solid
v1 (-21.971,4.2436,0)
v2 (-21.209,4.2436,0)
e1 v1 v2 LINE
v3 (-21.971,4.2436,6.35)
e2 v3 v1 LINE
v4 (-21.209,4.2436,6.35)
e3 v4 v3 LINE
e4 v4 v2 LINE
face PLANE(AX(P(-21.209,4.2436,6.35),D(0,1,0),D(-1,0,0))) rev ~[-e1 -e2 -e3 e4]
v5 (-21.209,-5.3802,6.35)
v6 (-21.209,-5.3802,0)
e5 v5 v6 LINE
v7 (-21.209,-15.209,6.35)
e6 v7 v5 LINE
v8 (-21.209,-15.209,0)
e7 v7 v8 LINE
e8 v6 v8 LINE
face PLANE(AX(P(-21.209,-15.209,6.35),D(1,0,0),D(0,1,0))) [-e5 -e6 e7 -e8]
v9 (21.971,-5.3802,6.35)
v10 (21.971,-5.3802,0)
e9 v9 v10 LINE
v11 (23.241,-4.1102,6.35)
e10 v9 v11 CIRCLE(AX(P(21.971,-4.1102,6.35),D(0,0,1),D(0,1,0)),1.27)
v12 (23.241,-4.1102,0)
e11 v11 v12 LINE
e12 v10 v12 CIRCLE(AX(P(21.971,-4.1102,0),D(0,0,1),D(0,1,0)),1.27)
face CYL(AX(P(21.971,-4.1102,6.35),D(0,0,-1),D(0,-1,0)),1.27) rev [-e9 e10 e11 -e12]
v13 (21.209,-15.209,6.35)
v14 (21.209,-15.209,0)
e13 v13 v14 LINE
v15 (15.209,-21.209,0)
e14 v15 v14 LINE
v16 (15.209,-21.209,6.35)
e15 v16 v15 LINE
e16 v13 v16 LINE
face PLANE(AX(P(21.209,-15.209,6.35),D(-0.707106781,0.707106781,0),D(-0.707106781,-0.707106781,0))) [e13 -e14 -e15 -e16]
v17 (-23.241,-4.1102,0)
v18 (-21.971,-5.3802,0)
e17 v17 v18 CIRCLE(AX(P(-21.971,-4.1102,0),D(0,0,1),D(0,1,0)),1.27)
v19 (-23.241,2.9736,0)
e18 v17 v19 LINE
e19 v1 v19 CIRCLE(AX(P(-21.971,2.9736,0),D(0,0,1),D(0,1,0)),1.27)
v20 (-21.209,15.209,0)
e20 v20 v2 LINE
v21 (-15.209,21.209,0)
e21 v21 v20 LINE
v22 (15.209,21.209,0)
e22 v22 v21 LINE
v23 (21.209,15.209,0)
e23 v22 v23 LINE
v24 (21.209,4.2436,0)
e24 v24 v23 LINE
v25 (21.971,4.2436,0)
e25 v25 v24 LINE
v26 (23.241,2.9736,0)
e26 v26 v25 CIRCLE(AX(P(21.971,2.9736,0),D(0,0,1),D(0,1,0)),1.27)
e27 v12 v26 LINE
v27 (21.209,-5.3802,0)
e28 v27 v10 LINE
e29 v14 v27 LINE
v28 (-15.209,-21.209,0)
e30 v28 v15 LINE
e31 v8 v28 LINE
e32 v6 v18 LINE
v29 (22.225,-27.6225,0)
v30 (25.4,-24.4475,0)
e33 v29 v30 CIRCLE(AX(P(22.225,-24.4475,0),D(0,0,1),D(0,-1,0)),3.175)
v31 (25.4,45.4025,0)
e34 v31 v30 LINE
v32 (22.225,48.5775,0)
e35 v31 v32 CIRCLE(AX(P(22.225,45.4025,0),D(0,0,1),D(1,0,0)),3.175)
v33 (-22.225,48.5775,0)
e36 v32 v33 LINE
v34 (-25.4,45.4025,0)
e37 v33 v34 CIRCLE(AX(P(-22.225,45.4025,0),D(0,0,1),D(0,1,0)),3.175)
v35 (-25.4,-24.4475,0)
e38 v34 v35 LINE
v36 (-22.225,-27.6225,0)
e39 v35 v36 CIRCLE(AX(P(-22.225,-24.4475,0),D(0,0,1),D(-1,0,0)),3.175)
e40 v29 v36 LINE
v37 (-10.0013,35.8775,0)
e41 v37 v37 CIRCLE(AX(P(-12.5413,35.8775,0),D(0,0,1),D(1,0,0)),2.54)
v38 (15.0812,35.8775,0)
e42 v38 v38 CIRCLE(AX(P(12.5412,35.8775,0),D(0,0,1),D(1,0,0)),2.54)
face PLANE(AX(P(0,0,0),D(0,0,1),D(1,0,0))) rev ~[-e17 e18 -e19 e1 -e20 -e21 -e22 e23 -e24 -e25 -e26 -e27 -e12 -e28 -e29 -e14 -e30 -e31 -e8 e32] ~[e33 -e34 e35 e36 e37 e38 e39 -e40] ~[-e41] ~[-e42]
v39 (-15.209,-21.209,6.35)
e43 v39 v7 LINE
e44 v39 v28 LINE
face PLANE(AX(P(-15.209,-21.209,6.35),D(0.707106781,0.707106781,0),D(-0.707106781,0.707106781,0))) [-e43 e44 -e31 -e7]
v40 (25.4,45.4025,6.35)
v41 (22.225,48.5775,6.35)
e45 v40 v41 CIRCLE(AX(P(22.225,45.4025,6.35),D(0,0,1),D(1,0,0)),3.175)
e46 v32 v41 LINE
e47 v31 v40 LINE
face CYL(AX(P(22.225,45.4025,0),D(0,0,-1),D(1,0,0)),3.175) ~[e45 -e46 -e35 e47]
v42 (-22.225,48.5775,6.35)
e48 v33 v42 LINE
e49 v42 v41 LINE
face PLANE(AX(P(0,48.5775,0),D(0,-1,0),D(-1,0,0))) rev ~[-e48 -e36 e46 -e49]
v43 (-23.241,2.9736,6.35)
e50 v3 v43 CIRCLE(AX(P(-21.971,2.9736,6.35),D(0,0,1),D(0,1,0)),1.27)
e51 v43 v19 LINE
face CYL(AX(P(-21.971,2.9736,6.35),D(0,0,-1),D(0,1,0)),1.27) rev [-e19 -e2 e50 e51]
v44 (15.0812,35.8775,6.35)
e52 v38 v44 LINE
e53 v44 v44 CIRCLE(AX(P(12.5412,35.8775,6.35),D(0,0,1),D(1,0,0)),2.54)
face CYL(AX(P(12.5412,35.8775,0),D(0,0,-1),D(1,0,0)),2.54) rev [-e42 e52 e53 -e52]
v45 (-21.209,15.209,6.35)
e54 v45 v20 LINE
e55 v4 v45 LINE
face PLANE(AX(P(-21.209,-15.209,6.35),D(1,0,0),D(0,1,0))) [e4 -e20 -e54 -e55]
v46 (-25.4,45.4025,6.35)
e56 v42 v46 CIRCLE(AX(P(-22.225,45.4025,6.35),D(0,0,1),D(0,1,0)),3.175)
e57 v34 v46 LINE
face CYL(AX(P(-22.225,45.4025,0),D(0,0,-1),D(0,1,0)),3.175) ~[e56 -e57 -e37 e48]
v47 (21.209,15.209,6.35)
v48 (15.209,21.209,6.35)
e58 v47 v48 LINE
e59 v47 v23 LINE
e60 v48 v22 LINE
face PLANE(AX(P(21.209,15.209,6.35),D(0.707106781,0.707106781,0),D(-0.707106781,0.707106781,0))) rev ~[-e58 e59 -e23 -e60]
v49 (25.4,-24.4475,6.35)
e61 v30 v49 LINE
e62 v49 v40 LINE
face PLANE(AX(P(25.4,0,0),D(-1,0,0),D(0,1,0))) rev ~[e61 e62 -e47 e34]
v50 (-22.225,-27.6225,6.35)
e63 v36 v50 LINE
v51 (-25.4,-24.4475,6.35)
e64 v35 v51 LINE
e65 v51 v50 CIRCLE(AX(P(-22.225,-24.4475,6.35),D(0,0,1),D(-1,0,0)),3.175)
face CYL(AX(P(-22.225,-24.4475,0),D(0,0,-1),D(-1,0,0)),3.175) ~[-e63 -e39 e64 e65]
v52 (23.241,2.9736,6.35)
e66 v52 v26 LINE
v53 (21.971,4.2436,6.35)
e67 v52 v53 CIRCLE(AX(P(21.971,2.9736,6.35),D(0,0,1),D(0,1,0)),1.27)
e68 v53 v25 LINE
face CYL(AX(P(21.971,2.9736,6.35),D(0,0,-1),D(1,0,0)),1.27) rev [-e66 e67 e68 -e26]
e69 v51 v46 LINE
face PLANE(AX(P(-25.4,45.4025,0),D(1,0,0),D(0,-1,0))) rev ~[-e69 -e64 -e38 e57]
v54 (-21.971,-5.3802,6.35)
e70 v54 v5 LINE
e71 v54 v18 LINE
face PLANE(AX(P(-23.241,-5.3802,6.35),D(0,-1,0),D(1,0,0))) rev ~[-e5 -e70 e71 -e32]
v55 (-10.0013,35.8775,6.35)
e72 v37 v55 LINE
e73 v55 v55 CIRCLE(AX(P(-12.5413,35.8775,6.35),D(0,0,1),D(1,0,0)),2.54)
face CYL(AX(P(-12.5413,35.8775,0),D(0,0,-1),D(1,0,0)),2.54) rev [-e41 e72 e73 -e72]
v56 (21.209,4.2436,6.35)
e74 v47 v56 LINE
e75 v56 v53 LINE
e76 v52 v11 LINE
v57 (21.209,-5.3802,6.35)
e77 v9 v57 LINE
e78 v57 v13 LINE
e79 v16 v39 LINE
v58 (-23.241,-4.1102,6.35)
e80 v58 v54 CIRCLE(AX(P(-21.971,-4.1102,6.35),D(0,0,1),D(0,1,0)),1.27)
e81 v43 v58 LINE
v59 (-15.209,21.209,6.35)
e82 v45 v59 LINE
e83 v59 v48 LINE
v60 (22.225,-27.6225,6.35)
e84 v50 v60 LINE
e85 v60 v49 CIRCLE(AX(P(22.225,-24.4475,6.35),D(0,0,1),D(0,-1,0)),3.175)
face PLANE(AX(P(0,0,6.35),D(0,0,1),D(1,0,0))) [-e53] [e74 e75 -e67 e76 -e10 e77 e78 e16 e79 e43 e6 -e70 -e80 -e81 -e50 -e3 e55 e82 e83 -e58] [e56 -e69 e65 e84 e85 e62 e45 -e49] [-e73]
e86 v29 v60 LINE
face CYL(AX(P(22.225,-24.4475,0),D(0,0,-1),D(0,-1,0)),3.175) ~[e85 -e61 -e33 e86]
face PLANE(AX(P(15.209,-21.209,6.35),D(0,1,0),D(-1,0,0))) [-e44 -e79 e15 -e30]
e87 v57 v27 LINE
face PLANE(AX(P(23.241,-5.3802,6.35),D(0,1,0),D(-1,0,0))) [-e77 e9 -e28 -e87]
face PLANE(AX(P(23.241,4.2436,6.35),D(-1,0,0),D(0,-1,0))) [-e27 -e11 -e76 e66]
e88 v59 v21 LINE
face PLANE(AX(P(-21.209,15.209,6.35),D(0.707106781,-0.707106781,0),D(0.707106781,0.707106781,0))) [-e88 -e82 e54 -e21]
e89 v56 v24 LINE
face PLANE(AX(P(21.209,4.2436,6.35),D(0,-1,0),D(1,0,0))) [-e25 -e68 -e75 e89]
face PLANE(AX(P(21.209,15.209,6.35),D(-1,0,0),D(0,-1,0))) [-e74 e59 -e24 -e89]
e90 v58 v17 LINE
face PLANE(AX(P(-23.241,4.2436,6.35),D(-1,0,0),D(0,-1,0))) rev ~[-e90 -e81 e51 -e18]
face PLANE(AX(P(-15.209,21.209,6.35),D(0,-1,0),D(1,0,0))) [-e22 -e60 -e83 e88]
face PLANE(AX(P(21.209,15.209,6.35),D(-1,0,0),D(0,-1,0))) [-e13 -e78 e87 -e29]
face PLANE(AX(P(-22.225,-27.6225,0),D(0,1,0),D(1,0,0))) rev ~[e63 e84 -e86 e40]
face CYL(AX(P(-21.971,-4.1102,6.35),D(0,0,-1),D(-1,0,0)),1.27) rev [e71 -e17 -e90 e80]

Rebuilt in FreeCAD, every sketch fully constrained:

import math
import FreeCAD as App
import Part
import Sketcher
Q = App.Units.Quantity


def edges_at(feature, points):
    """Names of the edges that pass closest to the given points."""
    edges = feature.Shape.Edges
    near = lambda p: min(range(len(edges)), key=lambda i: edges[i].distToShape(Part.Vertex(*p))[0])
    return sorted({f"Edge{near(p) + 1}" for p in points})


def add_polygon(sketch, points):
    """Adds a closed chain of lines whose ends are joined by coincident constraints."""
    first, n = sketch.GeometryCount, len(points)
    for a, b in zip(points, points[1:] + points[:1]):
        sketch.addGeometry(Part.LineSegment(App.Vector(*a, 0), App.Vector(*b, 0)), False)
    for i in range(n):
        sketch.addConstraint(Sketcher.Constraint("Coincident", first + i, 2, first + (i + 1) % n, 1))

doc = App.newDocument("Part")
body = doc.addObject("PartDesign::Body", "Body")

sketch1 = body.newObject("Sketcher::SketchObject", "Sketch")
sketch1.AttachmentSupport = (doc.getObject("XY_Plane"), [""])
sketch1.MapMode = "FlatFace"
sketch1.addGeometry(Part.ArcOfCircle(Part.Circle(App.Vector(-22.2, 45.4, 0), App.Vector(0, 0, 1), 3.2), math.radians(90), math.radians(180)), False)
sketch1.addGeometry(Part.LineSegment(App.Vector(-25.4, 45.4, 0), App.Vector(-25.4, -24.4, 0)), False)
sketch1.addGeometry(Part.ArcOfCircle(Part.Circle(App.Vector(-22.2, -24.4, 0), App.Vector(0, 0, 1), 3.2), math.radians(180), math.radians(270)), False)
sketch1.addGeometry(Part.LineSegment(App.Vector(-22.2, -27.6, 0), App.Vector(22.2, -27.6, 0)), False)
sketch1.addGeometry(Part.ArcOfCircle(Part.Circle(App.Vector(22.2, -24.4, 0), App.Vector(0, 0, 1), 3.2), math.radians(-90), math.radians(0)), False)
sketch1.addGeometry(Part.LineSegment(App.Vector(25.4, -24.4, 0), App.Vector(25.4, 45.4, 0)), False)
sketch1.addGeometry(Part.ArcOfCircle(Part.Circle(App.Vector(22.2, 45.4, 0), App.Vector(0, 0, 1), 3.2), math.radians(0), math.radians(90)), False)
sketch1.addGeometry(Part.LineSegment(App.Vector(22.2, 48.6, 0), App.Vector(-22.2, 48.6, 0)), False)
sketch1.addGeometry(Part.Circle(App.Vector(-12.5, 35.9, 0), App.Vector(0, 0, 1), 2.5), False)
sketch1.addGeometry(Part.Circle(App.Vector(12.5, 35.9, 0), App.Vector(0, 0, 1), 2.5), False)
sketch1.addConstraint(Sketcher.Constraint("Tangent", 0, 2, 1, 1))
sketch1.addConstraint(Sketcher.Constraint("Tangent", 1, 2, 2, 1))
sketch1.addConstraint(Sketcher.Constraint("Tangent", 2, 2, 3, 1))
sketch1.addConstraint(Sketcher.Constraint("Tangent", 3, 2, 4, 1))
sketch1.addConstraint(Sketcher.Constraint("Tangent", 4, 2, 5, 1))
sketch1.addConstraint(Sketcher.Constraint("Tangent", 5, 2, 6, 1))
sketch1.addConstraint(Sketcher.Constraint("Tangent", 6, 2, 7, 1))
sketch1.addConstraint(Sketcher.Constraint("Tangent", 7, 2, 0, 1))
sketch1.addConstraint(Sketcher.Constraint("Vertical", 1))
sketch1.addConstraint(Sketcher.Constraint("Horizontal", 3))
sketch1.addConstraint(Sketcher.Constraint("Vertical", 5))
sketch1.addConstraint(Sketcher.Constraint("Horizontal", 7))
sketch1.addConstraint(Sketcher.Constraint("Equal", 0, 2))
sketch1.addConstraint(Sketcher.Constraint("Equal", 2, 4))
sketch1.addConstraint(Sketcher.Constraint("Equal", 4, 6))
sketch1.addConstraint(Sketcher.Constraint("Equal", 8, 9))
sketch1.addConstraint(Sketcher.Constraint("Symmetric", 8, 3, 9, 3, -2))
sketch1.addConstraint(Sketcher.Constraint("Diameter", 8, Q("0.2 in")))
sketch1.addConstraint(Sketcher.Constraint("Radius", 0, Q("0.125 in")))
sketch1.addConstraint(Sketcher.Constraint("DistanceX", 1, 2, 4, 2, Q("2 in")))
sketch1.addConstraint(Sketcher.Constraint("DistanceX", 0, 2, -1, 1, Q("1 in")))
sketch1.addConstraint(Sketcher.Constraint("DistanceY", 1, 2, 1, 1, Q("2.75 in")))
sketch1.addConstraint(Sketcher.Constraint("DistanceX", 8, 3, 9, 3, Q("0.9875 in")))
sketch1.addConstraint(Sketcher.Constraint("DistanceY", 2, 2, 8, 3, Q("2.5 in")))
sketch1.addConstraint(Sketcher.Constraint("DistanceY", -1, 1, 0, 3, Q("1.7875 in")))
pad1 = body.newObject("PartDesign::Pad", "Pad")
pad1.Profile = sketch1
pad1.Length = Q("0.25 in")

sketch2 = body.newObject("Sketcher::SketchObject", "Sketch001")
sketch2.AttachmentSupport = (doc.getObject("XY_Plane"), [""])
sketch2.MapMode = "FlatFace"
sketch2.AttachmentOffset = App.Placement(App.Vector(0, 0, 0.25 * 25.4), App.Rotation())
add_polygon(sketch2, [(-15, -21), (15, -21), (21, -15), (21, 15), (15, 21), (-15, 21), (-21, 15), (-21, -15)])
sketch2.addConstraint(Sketcher.Constraint("Horizontal", 0))
sketch2.addConstraint(Sketcher.Constraint("Vertical", 2))
sketch2.addConstraint(Sketcher.Constraint("Horizontal", 4))
sketch2.addConstraint(Sketcher.Constraint("Vertical", 6))
sketch2.addConstraint(Sketcher.Constraint("Symmetric", 0, 2, 4, 2, -1, 1))
sketch2.addConstraint(Sketcher.Constraint("Symmetric", 1, 2, 5, 2, -1, 1))
sketch2.addConstraint(Sketcher.Constraint("Perpendicular", 1, 3))
sketch2.addConstraint(Sketcher.Constraint("Perpendicular", 5, 7))
sketch2.addConstraint(Sketcher.Constraint("Horizontal", 2, 2, 5, 2))
sketch2.addConstraint(Sketcher.Constraint("Horizontal", 1, 2, 6, 2))
sketch2.addConstraint(Sketcher.Constraint("Vertical", 0, 2, 3, 2))
sketch2.addConstraint(Sketcher.Constraint("Equal", 4, 2))
sketch2.addConstraint(Sketcher.Constraint("DistanceY", 0, 2, 3, 2, Q("1.67 in")))
sketch2.addConstraint(Sketcher.Constraint("DistanceX", 0, 2, 1, 2, Q("6 mm")))
pocket1 = body.newObject("PartDesign::Pocket", "Pocket")
pocket1.Profile = sketch2
pocket1.Type = "UpToFirst"

sketch3 = body.newObject("Sketcher::SketchObject", "Sketch002")
sketch3.AttachmentSupport = (doc.getObject("XY_Plane"), [""])
sketch3.MapMode = "FlatFace"
sketch3.AttachmentOffset = App.Placement(App.Vector(0, 0, 0.25 * 25.4), App.Rotation())
add_polygon(sketch3, [(-21.2, -5.4), (-21.2, 4.2), (-23.2, 4.2), (-23.2, -5.4)])
add_polygon(sketch3, [(23.2, 4.2), (21.2, 4.2), (21.2, -5.4), (23.2, -5.4)])
sketch3.addConstraint(Sketcher.Constraint("Vertical", 0))
sketch3.addConstraint(Sketcher.Constraint("Horizontal", 1))
sketch3.addConstraint(Sketcher.Constraint("Vertical", 2))
sketch3.addConstraint(Sketcher.Constraint("Horizontal", 3))
sketch3.addConstraint(Sketcher.Constraint("Horizontal", 4))
sketch3.addConstraint(Sketcher.Constraint("Vertical", 5))
sketch3.addConstraint(Sketcher.Constraint("Horizontal", 6))
sketch3.addConstraint(Sketcher.Constraint("Vertical", 7))
sketch3.addConstraint(Sketcher.Constraint("Symmetric", 0, 2, 4, 2, -2))
sketch3.addConstraint(Sketcher.Constraint("Symmetric", 2, 2, 6, 2, -2))
sketch3.addConstraint(Sketcher.Constraint("DistanceX", 1, 2, 1, 1, Q("0.08 in")))
sketch3.addConstraint(Sketcher.Constraint("DistanceX", 0, 2, 4, 2, Q("1.67 in")))
sketch3.addConstraint(Sketcher.Constraint("DistanceY", 0, 1, 0, 2, Q("0.3789 in")))
sketch3.addConstraint(Sketcher.Constraint("DistanceY", -1, 1, 0, 2, Q("4.2436 mm")))
pocket2 = body.newObject("PartDesign::Pocket", "Pocket001")
pocket2.Profile = sketch3
pocket2.Length = Q("0.25 in")
doc.recompute()

fillet = body.newObject("PartDesign::Fillet", "Fillet")
fillet.Base = (pocket2, edges_at(pocket2, [
    (-23.241, 4.244, 3.175),
    (-23.241, -5.38, 3.175),
    (23.241, 4.244, 3.175),
    (23.241, -5.38, 3.175),
]))
fillet.Radius = Q("0.05 in")

doc.recompute()
